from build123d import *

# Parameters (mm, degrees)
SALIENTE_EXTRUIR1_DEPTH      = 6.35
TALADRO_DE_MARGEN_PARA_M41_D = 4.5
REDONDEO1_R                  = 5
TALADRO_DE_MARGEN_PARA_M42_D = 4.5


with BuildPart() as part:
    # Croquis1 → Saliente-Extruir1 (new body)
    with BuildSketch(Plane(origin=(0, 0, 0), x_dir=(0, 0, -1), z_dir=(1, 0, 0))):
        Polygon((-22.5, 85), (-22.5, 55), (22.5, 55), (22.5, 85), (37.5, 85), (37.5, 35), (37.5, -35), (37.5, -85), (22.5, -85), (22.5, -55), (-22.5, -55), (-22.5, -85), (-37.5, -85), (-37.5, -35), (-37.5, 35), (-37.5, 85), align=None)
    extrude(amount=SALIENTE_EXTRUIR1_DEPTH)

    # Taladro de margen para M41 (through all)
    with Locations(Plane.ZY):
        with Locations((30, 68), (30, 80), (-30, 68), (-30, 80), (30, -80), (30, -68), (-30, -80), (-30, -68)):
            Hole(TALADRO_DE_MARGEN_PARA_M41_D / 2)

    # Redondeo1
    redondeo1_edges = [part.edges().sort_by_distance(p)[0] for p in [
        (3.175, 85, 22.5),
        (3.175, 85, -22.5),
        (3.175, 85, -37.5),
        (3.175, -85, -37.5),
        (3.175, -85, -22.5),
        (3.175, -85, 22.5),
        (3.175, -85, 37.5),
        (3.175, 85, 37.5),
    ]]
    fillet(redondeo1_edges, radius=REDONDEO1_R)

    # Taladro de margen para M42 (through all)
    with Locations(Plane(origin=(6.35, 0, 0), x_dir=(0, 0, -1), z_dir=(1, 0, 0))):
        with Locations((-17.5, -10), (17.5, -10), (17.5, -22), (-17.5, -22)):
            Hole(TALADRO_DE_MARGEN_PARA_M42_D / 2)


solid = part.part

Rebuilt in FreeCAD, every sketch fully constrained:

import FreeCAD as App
import Part
import Sketcher


def edges_at(feature, points):
    """Names of the edges that pass closest to the given points."""
    edges = feature.Shape.Edges
    near = lambda p: min(range(len(edges)), key=lambda i: edges[i].distToShape(Part.Vertex(*p))[0])
    return sorted({f"Edge{near(p) + 1}" for p in points})


def add_polygon(sketch, points):
    """Adds a closed chain of lines whose ends are joined by coincident constraints."""
    first, n = sketch.GeometryCount, len(points)
    for a, b in zip(points, points[1:] + points[:1]):
        sketch.addGeometry(Part.LineSegment(App.Vector(*a, 0), App.Vector(*b, 0)), False)
    for i in range(n):
        sketch.addConstraint(Sketcher.Constraint("Coincident", first + i, 2, first + (i + 1) % n, 1))

doc = App.newDocument("Part")
body = doc.addObject("PartDesign::Body", "Body")

sketch1 = body.newObject("Sketcher::SketchObject", "Sketch")
sketch1.AttachmentSupport = (doc.getObject("YZ_Plane"), [""])
sketch1.MapMode = "FlatFace"
add_polygon(sketch1, [(55, 22), (85, 22), (85, 38), (-85, 38), (-85, 22), (-55, 22), (-55, -22), (-85, -22), (-85, -38), (85, -38), (85, -22), (55, -22)])
sketch1.addConstraint([
    Sketcher.Constraint("Horizontal", 0),
    Sketcher.Constraint("Vertical", 1),
    Sketcher.Constraint("Horizontal", 2),
    Sketcher.Constraint("Vertical", 3),
    Sketcher.Constraint("Horizontal", 4),
    Sketcher.Constraint("Vertical", 5),
    Sketcher.Constraint("Horizontal", 6),
    Sketcher.Constraint("Vertical", 7),
    Sketcher.Constraint("Horizontal", 8),
    Sketcher.Constraint("Vertical", 9),
    Sketcher.Constraint("Horizontal", 10),
    Sketcher.Constraint("Vertical", 11),
    Sketcher.Constraint("Symmetric", 0, 2, 6, 2, -1, 1),
    Sketcher.Constraint("Symmetric", 2, 2, 8, 2, -1, 1),
    Sketcher.Constraint("Symmetric", 4, 2, 10, 2, -1, 1),
    Sketcher.Constraint("Symmetric", 0, 2, 3, 2, -2),
    Sketcher.Constraint("DistanceX", 0, 1, 0, 2, 30.0),
    Sketcher.Constraint("DistanceX", 2, 2, 2, 1, 170.0),
    Sketcher.Constraint("DistanceY", 1, 1, 1, 2, 15.0),
    Sketcher.Constraint("DistanceY", 5, 2, 5, 1, 45.0),
])
pad1 = body.newObject("PartDesign::Pad", "Pad")
pad1.Profile = sketch1
pad1.Length = 6.35

sketch2 = body.newObject("Sketcher::SketchObject", "Sketch001")
sketch2.AttachmentSupport = (doc.getObject("YZ_Plane"), [""])
sketch2.MapMode = "FlatFace"
sketch2.addGeometry([
    Part.Circle(App.Vector(68, 30, 0), App.Vector(0, 0, 1), 2.2),
    Part.Circle(App.Vector(80, 30, 0), App.Vector(0, 0, 1), 2.2),
    Part.Circle(App.Vector(68, -30, 0), App.Vector(0, 0, 1), 2.2),
    Part.Circle(App.Vector(80, -30, 0), App.Vector(0, 0, 1), 2.2),
    Part.Circle(App.Vector(-80, 30, 0), App.Vector(0, 0, 1), 2.2),
    Part.Circle(App.Vector(-68, 30, 0), App.Vector(0, 0, 1), 2.2),
    Part.Circle(App.Vector(-80, -30, 0), App.Vector(0, 0, 1), 2.2),
    Part.Circle(App.Vector(-68, -30, 0), App.Vector(0, 0, 1), 2.2),
], False)
sketch2.addConstraint([
    Sketcher.Constraint("Equal", 0, 1),
    Sketcher.Constraint("Equal", 1, 2),
    Sketcher.Constraint("Equal", 2, 3),
    Sketcher.Constraint("Equal", 3, 4),
    Sketcher.Constraint("Equal", 4, 5),
    Sketcher.Constraint("Equal", 5, 6),
    Sketcher.Constraint("Equal", 6, 7),
    Sketcher.Constraint("Symmetric", 3, 3, 4, 3, -1, 1),
    Sketcher.Constraint("Symmetric", 2, 3, 5, 3, -1, 1),
    Sketcher.Constraint("Symmetric", 1, 3, 6, 3, -1, 1),
    Sketcher.Constraint("Symmetric", 0, 3, 7, 3, -1, 1),
    Sketcher.Constraint("Symmetric", 1, 3, 4, 3, -2),
    Sketcher.Constraint("Symmetric", 0, 3, 5, 3, -2),
    Sketcher.Constraint("Horizontal", 0, 3, 1, 3),
    Sketcher.Constraint("Diameter", 0, 4.5),
    Sketcher.Constraint("DistanceX", -1, 1, 0, 3, 68.0),
    Sketcher.Constraint("DistanceY", -1, 1, 0, 3, 30.0),
    Sketcher.Constraint("DistanceX", -1, 1, 1, 3, 80.0),
])
doc.recompute()
hole = body.newObject("PartDesign::Hole", "Hole")
hole.Profile = sketch2
hole.ThreadType = "None"
hole.Diameter = 4.5
hole.DepthType = "ThroughAll"
hole.Reversed = True
doc.recompute()

fillet = body.newObject("PartDesign::Fillet", "Fillet")
fillet.Base = (hole, edges_at(hole, [
    (3.175, 85, 22.5),
    (3.175, 85, -22.5),
    (3.175, 85, -37.5),
    (3.175, -85, -37.5),
    (3.175, -85, -22.5),
    (3.175, -85, 22.5),
    (3.175, -85, 37.5),
    (3.175, 85, 37.5),
]))
fillet.Radius = 5

sketch3 = body.newObject("Sketcher::SketchObject", "Sketch002")
sketch3.AttachmentSupport = (doc.getObject("YZ_Plane"), [""])
sketch3.MapMode = "FlatFace"
sketch3.AttachmentOffset = App.Placement(App.Vector(0, 0, 6.35), App.Rotation())
sketch3.addGeometry([
    Part.Circle(App.Vector(-10, 17.5, 0), App.Vector(0, 0, 1), 2.2),
    Part.Circle(App.Vector(-10, -17.5, 0), App.Vector(0, 0, 1), 2.2),
    Part.Circle(App.Vector(-22, -17.5, 0), App.Vector(0, 0, 1), 2.2),
    Part.Circle(App.Vector(-22, 17.5, 0), App.Vector(0, 0, 1), 2.2),
], False)
sketch3.addConstraint([
    Sketcher.Constraint("Equal", 0, 1),
    Sketcher.Constraint("Equal", 1, 2),
    Sketcher.Constraint("Equal", 2, 3),
    Sketcher.Constraint("Symmetric", 0, 3, 1, 3, -1),
    Sketcher.Constraint("Symmetric", 2, 3, 3, 3, -1),
    Sketcher.Constraint("Horizontal", 1, 3, 2, 3),
    Sketcher.Constraint("Diameter", 0, 4.5),
    Sketcher.Constraint("DistanceX", 0, 3, -1, 1, 10.0),
    Sketcher.Constraint("DistanceX", 2, 3, -1, 1, 22.0),
    Sketcher.Constraint("DistanceY", 1, 3, 0, 3, 35.0),
])
doc.recompute()
hole2 = body.newObject("PartDesign::Hole", "Hole001")
hole2.Profile = sketch3
hole2.ThreadType = "None"
hole2.Diameter = 4.5
hole2.DepthType = "ThroughAll"

doc.recompute()
